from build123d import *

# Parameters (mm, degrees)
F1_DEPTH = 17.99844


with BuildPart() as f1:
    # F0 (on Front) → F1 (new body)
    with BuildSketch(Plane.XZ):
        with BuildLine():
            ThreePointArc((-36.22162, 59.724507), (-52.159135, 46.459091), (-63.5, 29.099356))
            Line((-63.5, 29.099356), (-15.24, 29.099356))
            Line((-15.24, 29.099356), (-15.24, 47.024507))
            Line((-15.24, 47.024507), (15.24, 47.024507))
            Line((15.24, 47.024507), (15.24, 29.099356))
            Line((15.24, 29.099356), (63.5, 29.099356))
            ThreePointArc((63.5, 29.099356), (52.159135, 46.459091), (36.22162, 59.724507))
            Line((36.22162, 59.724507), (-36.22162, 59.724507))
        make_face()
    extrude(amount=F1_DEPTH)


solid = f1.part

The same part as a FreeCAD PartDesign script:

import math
import FreeCAD as App
import Part
import Sketcher
Q = App.Units.Quantity

doc = App.newDocument("Part")
body = doc.addObject("PartDesign::Body", "Body")

sketch1 = body.newObject("Sketcher::SketchObject", "Sketch")
sketch1.AttachmentSupport = (doc.getObject("XZ_Plane"), [""])
sketch1.MapMode = "FlatFace"
sketch1.addGeometry(Part.ArcOfCircle(Part.Circle(App.Vector(0, -0.000001, 0), App.Vector(0, 0, 1), 69.850001), math.radians(121.235904), math.radians(155.380022)), False)
sketch1.addGeometry(Part.LineSegment(App.Vector(-63.5, 29.099356, 0), App.Vector(-15.24, 29.099356, 0)), False)
sketch1.addGeometry(Part.LineSegment(App.Vector(-15.24, 29.099356, 0), App.Vector(-15.24, 47.024507, 0)), False)
sketch1.addGeometry(Part.LineSegment(App.Vector(-15.24, 47.024507, 0), App.Vector(15.24, 47.024507, 0)), False)
sketch1.addGeometry(Part.LineSegment(App.Vector(15.24, 47.024507, 0), App.Vector(15.24, 29.099356, 0)), False)
sketch1.addGeometry(Part.LineSegment(App.Vector(15.24, 29.099356, 0), App.Vector(63.5, 29.099356, 0)), False)
sketch1.addGeometry(Part.ArcOfCircle(Part.Circle(App.Vector(0, -0.000001, 0), App.Vector(0, 0, 1), 69.850001), math.radians(24.619978), math.radians(58.764096)), False)
sketch1.addGeometry(Part.LineSegment(App.Vector(36.22162, 59.724507, 0), App.Vector(-36.22162, 59.724507, 0)), False)
sketch1.addConstraint(Sketcher.Constraint("Coincident", 0, 2, 1, 1))
sketch1.addConstraint(Sketcher.Constraint("Coincident", 1, 2, 2, 1))
sketch1.addConstraint(Sketcher.Constraint("Coincident", 2, 2, 3, 1))
sketch1.addConstraint(Sketcher.Constraint("Coincident", 3, 2, 4, 1))
sketch1.addConstraint(Sketcher.Constraint("Coincident", 4, 2, 5, 1))
sketch1.addConstraint(Sketcher.Constraint("Coincident", 5, 2, 6, 1))
sketch1.addConstraint(Sketcher.Constraint("Coincident", 6, 2, 7, 1))
sketch1.addConstraint(Sketcher.Constraint("Coincident", 7, 2, 0, 1))
sketch1.addConstraint(Sketcher.Constraint("Horizontal", 1))
sketch1.addConstraint(Sketcher.Constraint("Vertical", 2))
sketch1.addConstraint(Sketcher.Constraint("Horizontal", 3))
sketch1.addConstraint(Sketcher.Constraint("Vertical", 4))
sketch1.addConstraint(Sketcher.Constraint("Horizontal", 5))
sketch1.addConstraint(Sketcher.Constraint("Horizontal", 7))
sketch1.addConstraint(Sketcher.Constraint("Coincident", 0, 3, -1, 1))
sketch1.addConstraint(Sketcher.Constraint("Coincident", 6, 3, -1, 1))
sketch1.addConstraint(Sketcher.Constraint("Equal", 0, 6))
sketch1.addConstraint(Sketcher.Constraint("Symmetric", 1, 2, 4, 2, -2))
sketch1.addConstraint(Sketcher.Constraint("Radius", 0, Q("2.75 in")))
sketch1.addConstraint(Sketcher.Constraint("DistanceX", 1, 1, 1, 2, Q("1.9 in")))
sketch1.addConstraint(Sketcher.Constraint("DistanceX", 3, 1, 3, 2, Q("1.2 in")))
sketch1.addConstraint(Sketcher.Constraint("DistanceY", 3, 2, 6, 2, Q("0.5 in")))
sketch1.addConstraint(Sketcher.Constraint("DistanceX", 7, 2, 7, 1, Q("72.44324 mm")))
pad1 = body.newObject("PartDesign::Pad", "Pad")
pad1.Profile = sketch1
pad1.Length = Q("0.7086 in")

doc.recompute()
